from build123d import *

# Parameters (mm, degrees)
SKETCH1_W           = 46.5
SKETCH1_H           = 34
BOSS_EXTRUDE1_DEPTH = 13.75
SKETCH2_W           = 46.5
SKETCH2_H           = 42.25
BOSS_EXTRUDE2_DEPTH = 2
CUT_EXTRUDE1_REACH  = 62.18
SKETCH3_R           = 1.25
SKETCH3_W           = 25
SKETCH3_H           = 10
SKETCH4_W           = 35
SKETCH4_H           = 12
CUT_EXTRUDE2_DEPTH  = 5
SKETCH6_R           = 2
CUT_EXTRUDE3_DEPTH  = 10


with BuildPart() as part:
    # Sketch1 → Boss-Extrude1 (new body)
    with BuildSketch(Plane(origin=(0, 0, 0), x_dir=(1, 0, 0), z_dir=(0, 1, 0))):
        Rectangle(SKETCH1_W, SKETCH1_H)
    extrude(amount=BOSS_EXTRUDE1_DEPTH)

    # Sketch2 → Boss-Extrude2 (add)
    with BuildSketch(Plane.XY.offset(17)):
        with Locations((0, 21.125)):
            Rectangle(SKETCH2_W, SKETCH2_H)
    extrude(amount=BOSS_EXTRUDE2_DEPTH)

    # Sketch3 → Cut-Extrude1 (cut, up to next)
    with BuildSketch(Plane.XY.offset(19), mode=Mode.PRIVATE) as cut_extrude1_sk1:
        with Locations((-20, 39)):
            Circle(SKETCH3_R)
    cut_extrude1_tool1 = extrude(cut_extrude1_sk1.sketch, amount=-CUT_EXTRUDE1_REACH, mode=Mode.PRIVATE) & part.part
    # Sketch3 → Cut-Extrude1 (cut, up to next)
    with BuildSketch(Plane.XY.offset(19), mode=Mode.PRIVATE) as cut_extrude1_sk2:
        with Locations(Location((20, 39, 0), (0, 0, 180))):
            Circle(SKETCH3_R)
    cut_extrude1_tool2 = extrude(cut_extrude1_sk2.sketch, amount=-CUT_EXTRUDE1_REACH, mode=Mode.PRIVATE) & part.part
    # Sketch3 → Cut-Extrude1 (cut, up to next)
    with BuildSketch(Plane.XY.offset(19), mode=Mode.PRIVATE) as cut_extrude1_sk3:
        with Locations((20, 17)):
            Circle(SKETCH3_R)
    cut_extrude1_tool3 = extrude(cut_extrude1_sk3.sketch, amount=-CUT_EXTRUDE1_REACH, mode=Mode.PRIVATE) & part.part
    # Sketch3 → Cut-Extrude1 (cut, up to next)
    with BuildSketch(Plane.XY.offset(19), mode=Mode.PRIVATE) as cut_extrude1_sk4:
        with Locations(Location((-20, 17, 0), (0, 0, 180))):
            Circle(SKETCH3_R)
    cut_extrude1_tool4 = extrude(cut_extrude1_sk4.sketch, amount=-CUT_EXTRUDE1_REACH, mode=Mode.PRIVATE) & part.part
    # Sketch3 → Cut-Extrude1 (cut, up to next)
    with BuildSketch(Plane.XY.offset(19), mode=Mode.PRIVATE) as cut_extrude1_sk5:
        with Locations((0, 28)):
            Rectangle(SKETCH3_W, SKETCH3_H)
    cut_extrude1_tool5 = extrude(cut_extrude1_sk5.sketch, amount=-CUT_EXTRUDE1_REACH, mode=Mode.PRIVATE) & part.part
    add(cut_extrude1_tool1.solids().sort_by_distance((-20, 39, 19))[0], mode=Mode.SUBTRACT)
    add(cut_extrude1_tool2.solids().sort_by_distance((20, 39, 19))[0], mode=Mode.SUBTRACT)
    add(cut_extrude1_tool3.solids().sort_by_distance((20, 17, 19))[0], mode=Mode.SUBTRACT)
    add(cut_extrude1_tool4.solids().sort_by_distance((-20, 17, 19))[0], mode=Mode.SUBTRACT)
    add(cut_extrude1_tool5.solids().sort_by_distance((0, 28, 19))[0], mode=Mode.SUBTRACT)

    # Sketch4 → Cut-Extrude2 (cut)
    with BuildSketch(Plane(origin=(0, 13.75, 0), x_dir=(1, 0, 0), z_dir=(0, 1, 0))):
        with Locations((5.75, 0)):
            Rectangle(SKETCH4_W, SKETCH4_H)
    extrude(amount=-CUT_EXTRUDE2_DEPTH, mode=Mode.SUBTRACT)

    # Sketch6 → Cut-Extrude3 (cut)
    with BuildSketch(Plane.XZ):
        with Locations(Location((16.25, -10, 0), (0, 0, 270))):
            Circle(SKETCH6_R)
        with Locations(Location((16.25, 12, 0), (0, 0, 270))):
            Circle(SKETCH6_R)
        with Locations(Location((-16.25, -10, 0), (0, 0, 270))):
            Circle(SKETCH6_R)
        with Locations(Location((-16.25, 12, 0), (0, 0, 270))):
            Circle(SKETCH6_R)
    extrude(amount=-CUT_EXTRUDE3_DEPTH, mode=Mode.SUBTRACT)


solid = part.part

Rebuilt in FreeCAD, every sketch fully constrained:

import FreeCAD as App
import Part
import Sketcher
from FreeCAD import Vector

doc = App.newDocument("Part")
body = doc.addObject("PartDesign::Body", "Body")

# Sketch on XZ plane
sketch1 = body.newObject("Sketcher::SketchObject", "Sketch")
sketch1.AttachmentSupport = (doc.getObject("XZ_Plane"), [""])
sketch1.MapMode = "FlatFace"
sketch1.addGeometry([
    Part.LineSegment(Vector(-23, -17, 0), Vector(-23, 17, 0)),
    Part.LineSegment(Vector(-23, 17, 0), Vector(23, 17, 0)),
    Part.LineSegment(Vector(23, 17, 0), Vector(23, -17, 0)),
    Part.LineSegment(Vector(23, -17, 0), Vector(-23, -17, 0)),
], False)
sketch1.addConstraint([
    Sketcher.Constraint("Coincident", 0, 2, 1, 1),
    Sketcher.Constraint("Coincident", 1, 2, 2, 1),
    Sketcher.Constraint("Coincident", 2, 2, 3, 1),
    Sketcher.Constraint("Coincident", 3, 2, 0, 1),
    Sketcher.Constraint("Vertical", 0),
    Sketcher.Constraint("Horizontal", 1),
    Sketcher.Constraint("Vertical", 2),
    Sketcher.Constraint("Horizontal", 3),
    Sketcher.Constraint("Symmetric", 0, 2, 2, 2, -1, 1),
    Sketcher.Constraint("DistanceY", 0, 1, 0, 2, 34.0),
    Sketcher.Constraint("DistanceX", 1, 1, 1, 2, 46.5),
])
pad1 = body.newObject("PartDesign::Pad", "Pad")
pad1.Profile = sketch1
pad1.Length = 13.75
pad1.Reversed = True

# Sketch on XY plane
sketch2 = body.newObject("Sketcher::SketchObject", "Sketch001")
sketch2.AttachmentSupport = (doc.getObject("XY_Plane"), [""])
sketch2.MapMode = "FlatFace"
sketch2.AttachmentOffset = App.Placement(Vector(0, 0, 17), App.Rotation())
sketch2.addGeometry([
    Part.LineSegment(Vector(-23, 42, 0), Vector(-23, 0, 0)),
    Part.LineSegment(Vector(-23, 0, 0), Vector(23, 0, 0)),
    Part.LineSegment(Vector(23, 0, 0), Vector(23, 42, 0)),
    Part.LineSegment(Vector(23, 42, 0), Vector(-23, 42, 0)),
], False)
sketch2.addConstraint([
    Sketcher.Constraint("Coincident", 0, 2, 1, 1),
    Sketcher.Constraint("Coincident", 1, 2, 2, 1),
    Sketcher.Constraint("Coincident", 2, 2, 3, 1),
    Sketcher.Constraint("Coincident", 3, 2, 0, 1),
    Sketcher.Constraint("Vertical", 0),
    Sketcher.Constraint("Horizontal", 1),
    Sketcher.Constraint("Vertical", 2),
    Sketcher.Constraint("Horizontal", 3),
    Sketcher.Constraint("Symmetric", 0, 2, 1, 2, -1, 1),
    Sketcher.Constraint("DistanceX", 1, 1, 1, 2, 46.5),
    Sketcher.Constraint("DistanceY", 0, 2, 0, 1, 42.25),
])
pad2 = body.newObject("PartDesign::Pad", "Pad001")
pad2.Profile = sketch2
pad2.Length = 2

# Sketch on XY plane
sketch3 = body.newObject("Sketcher::SketchObject", "Sketch002")
sketch3.AttachmentSupport = (doc.getObject("XY_Plane"), [""])
sketch3.MapMode = "FlatFace"
sketch3.AttachmentOffset = App.Placement(Vector(0, 0, 19), App.Rotation())
sketch3.addGeometry(Part.Circle(Vector(-20, 39, 0), Vector(0, 0, 1), 1.2), False)
sketch3.addConstraint([
    Sketcher.Constraint("Diameter", 0, 2.5),
    Sketcher.Constraint("DistanceX", 0, 3, -1, 1, 20.0),
    Sketcher.Constraint("DistanceY", -1, 1, 0, 3, 39.0),
])
pocket1 = body.newObject("PartDesign::Pocket", "Pocket")
pocket1.Profile = sketch3
pocket1.Type = "UpToFirst"

# Sketch on XY plane
sketch4 = body.newObject("Sketcher::SketchObject", "Sketch003")
sketch4.AttachmentSupport = (doc.getObject("XY_Plane"), [""])
sketch4.MapMode = "FlatFace"
sketch4.AttachmentOffset = App.Placement(Vector(0, 0, 19), App.Rotation())
sketch4.addGeometry(Part.Circle(Vector(20, 39, 0), Vector(0, 0, 1), 1.2), False)
sketch4.addConstraint([
    Sketcher.Constraint("Diameter", 0, 2.5),
    Sketcher.Constraint("DistanceX", -1, 1, 0, 3, 20.0),
    Sketcher.Constraint("DistanceY", -1, 1, 0, 3, 39.0),
])
pocket2 = body.newObject("PartDesign::Pocket", "Pocket001")
pocket2.Profile = sketch4
pocket2.Type = "UpToFirst"

# Sketch on XY plane
sketch5 = body.newObject("Sketcher::SketchObject", "Sketch004")
sketch5.AttachmentSupport = (doc.getObject("XY_Plane"), [""])
sketch5.MapMode = "FlatFace"
sketch5.AttachmentOffset = App.Placement(Vector(0, 0, 19), App.Rotation())
sketch5.addGeometry(Part.Circle(Vector(20, 17, 0), Vector(0, 0, 1), 1.2), False)
sketch5.addConstraint([
    Sketcher.Constraint("Diameter", 0, 2.5),
    Sketcher.Constraint("DistanceX", -1, 1, 0, 3, 20.0),
    Sketcher.Constraint("DistanceY", -1, 1, 0, 3, 17.0),
])
pocket3 = body.newObject("PartDesign::Pocket", "Pocket002")
pocket3.Profile = sketch5
pocket3.Type = "UpToFirst"

# Sketch on XY plane
sketch6 = body.newObject("Sketcher::SketchObject", "Sketch005")
sketch6.AttachmentSupport = (doc.getObject("XY_Plane"), [""])
sketch6.MapMode = "FlatFace"
sketch6.AttachmentOffset = App.Placement(Vector(0, 0, 19), App.Rotation())
sketch6.addGeometry(Part.Circle(Vector(-20, 17, 0), Vector(0, 0, 1), 1.2), False)
sketch6.addConstraint([
    Sketcher.Constraint("Diameter", 0, 2.5),
    Sketcher.Constraint("DistanceX", 0, 3, -1, 1, 20.0),
    Sketcher.Constraint("DistanceY", -1, 1, 0, 3, 17.0),
])
pocket4 = body.newObject("PartDesign::Pocket", "Pocket003")
pocket4.Profile = sketch6
pocket4.Type = "UpToFirst"

# Sketch on XY plane
sketch7 = body.newObject("Sketcher::SketchObject", "Sketch006")
sketch7.AttachmentSupport = (doc.getObject("XY_Plane"), [""])
sketch7.MapMode = "FlatFace"
sketch7.AttachmentOffset = App.Placement(Vector(0, 0, 19), App.Rotation())
sketch7.addGeometry([
    Part.LineSegment(Vector(-12, 33, 0), Vector(-12, 23, 0)),
    Part.LineSegment(Vector(-12, 23, 0), Vector(12, 23, 0)),
    Part.LineSegment(Vector(12, 23, 0), Vector(12, 33, 0)),
    Part.LineSegment(Vector(12, 33, 0), Vector(-12, 33, 0)),
], False)
sketch7.addConstraint([
    Sketcher.Constraint("Coincident", 0, 2, 1, 1),
    Sketcher.Constraint("Coincident", 1, 2, 2, 1),
    Sketcher.Constraint("Coincident", 2, 2, 3, 1),
    Sketcher.Constraint("Coincident", 3, 2, 0, 1),
    Sketcher.Constraint("Vertical", 0),
    Sketcher.Constraint("Horizontal", 1),
    Sketcher.Constraint("Vertical", 2),
    Sketcher.Constraint("Horizontal", 3),
    Sketcher.Constraint("DistanceX", 1, 1, 1, 2, 25.0),
    Sketcher.Constraint("DistanceY", 0, 2, 0, 1, 10.0),
    Sketcher.Constraint("DistanceY", -1, 1, 0, 2, 23.0),
    Sketcher.Constraint("DistanceX", 0, 2, -1, 1, 12.5),
])
pocket5 = body.newObject("PartDesign::Pocket", "Pocket004")
pocket5.Profile = sketch7
pocket5.Type = "UpToFirst"

# Sketch on XZ plane
sketch8 = body.newObject("Sketcher::SketchObject", "Sketch007")
sketch8.AttachmentSupport = (doc.getObject("XZ_Plane"), [""])
sketch8.MapMode = "FlatFace"
sketch8.AttachmentOffset = App.Placement(Vector(0, 0, -13.75), App.Rotation())
sketch8.addGeometry([
    Part.LineSegment(Vector(-12, -6, 0), Vector(-12, 6, 0)),
    Part.LineSegment(Vector(-12, 6, 0), Vector(23, 6, 0)),
    Part.LineSegment(Vector(23, 6, 0), Vector(23, -6, 0)),
    Part.LineSegment(Vector(23, -6, 0), Vector(-12, -6, 0)),
], False)
sketch8.addConstraint([
    Sketcher.Constraint("Coincident", 0, 2, 1, 1),
    Sketcher.Constraint("Coincident", 1, 2, 2, 1),
    Sketcher.Constraint("Coincident", 2, 2, 3, 1),
    Sketcher.Constraint("Coincident", 3, 2, 0, 1),
    Sketcher.Constraint("Vertical", 0),
    Sketcher.Constraint("Horizontal", 1),
    Sketcher.Constraint("Vertical", 2),
    Sketcher.Constraint("Horizontal", 3),
    Sketcher.Constraint("DistanceX", 1, 1, 1, 2, 35.0),
    Sketcher.Constraint("DistanceY", 0, 1, 0, 2, 12.0),
    Sketcher.Constraint("DistanceY", -1, 1, 0, 2, 6.0),
    Sketcher.Constraint("DistanceX", 0, 2, -1, 1, 11.75),
])
pocket6 = body.newObject("PartDesign::Pocket", "Pocket005")
pocket6.Profile = sketch8
pocket6.Length = 5
pocket6.Reversed = True

# Sketch on XZ plane
sketch9 = body.newObject("Sketcher::SketchObject", "Sketch008")
sketch9.AttachmentSupport = (doc.getObject("XZ_Plane"), [""])
sketch9.MapMode = "FlatFace"
sketch9.addGeometry([
    Part.Circle(Vector(16.2, -10, 0), Vector(0, 0, 1), 2),
    Part.Circle(Vector(16.2, 12, 0), Vector(0, 0, 1), 2),
    Part.Circle(Vector(-16.2, -10, 0), Vector(0, 0, 1), 2),
    Part.Circle(Vector(-16.2, 12, 0), Vector(0, 0, 1), 2),
], False)
sketch9.addConstraint([
    Sketcher.Constraint("Equal", 0, 1),
    Sketcher.Constraint("Equal", 1, 2),
    Sketcher.Constraint("Equal", 2, 3),
    Sketcher.Constraint("Symmetric", 0, 3, 2, 3, -2),
    Sketcher.Constraint("Symmetric", 1, 3, 3, 3, -2),
    Sketcher.Constraint("Vertical", 0, 3, 1, 3),
    Sketcher.Constraint("Diameter", 0, 4.0),
    Sketcher.Constraint("DistanceY", 0, 3, -1, 1, 10.0),
    Sketcher.Constraint("DistanceY", -1, 1, 1, 3, 12.0),
    Sketcher.Constraint("DistanceX", 2, 3, 0, 3, 32.5),
])
pocket7 = body.newObject("PartDesign::Pocket", "Pocket006")
pocket7.Profile = sketch9
pocket7.Length = 10

doc.recompute()
